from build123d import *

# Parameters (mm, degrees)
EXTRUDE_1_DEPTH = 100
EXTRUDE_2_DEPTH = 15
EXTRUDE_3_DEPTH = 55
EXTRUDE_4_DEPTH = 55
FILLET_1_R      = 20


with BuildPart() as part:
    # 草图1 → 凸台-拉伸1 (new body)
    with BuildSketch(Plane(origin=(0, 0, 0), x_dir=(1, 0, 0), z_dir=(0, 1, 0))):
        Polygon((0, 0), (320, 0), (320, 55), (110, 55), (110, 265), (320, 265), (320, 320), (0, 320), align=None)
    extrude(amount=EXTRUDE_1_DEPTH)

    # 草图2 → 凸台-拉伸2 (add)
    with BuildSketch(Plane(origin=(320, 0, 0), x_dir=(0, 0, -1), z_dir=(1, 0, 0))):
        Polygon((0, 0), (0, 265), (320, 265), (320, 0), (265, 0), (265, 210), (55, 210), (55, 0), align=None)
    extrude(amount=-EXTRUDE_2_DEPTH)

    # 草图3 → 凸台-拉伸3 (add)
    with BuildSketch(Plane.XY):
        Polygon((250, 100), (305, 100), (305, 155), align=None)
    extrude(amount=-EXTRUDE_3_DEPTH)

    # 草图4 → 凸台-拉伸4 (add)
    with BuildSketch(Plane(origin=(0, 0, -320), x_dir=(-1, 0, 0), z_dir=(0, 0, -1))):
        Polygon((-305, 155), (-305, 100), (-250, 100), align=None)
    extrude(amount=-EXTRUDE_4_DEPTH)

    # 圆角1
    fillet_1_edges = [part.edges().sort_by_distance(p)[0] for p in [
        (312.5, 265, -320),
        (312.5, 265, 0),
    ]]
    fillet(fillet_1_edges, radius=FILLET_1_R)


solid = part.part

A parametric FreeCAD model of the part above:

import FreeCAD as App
import Part
import Sketcher
from FreeCAD import Vector


def edges_at(feature, points):
    """Names of the edges that pass closest to the given points."""
    edges = feature.Shape.Edges
    near = lambda p: min(range(len(edges)), key=lambda i: edges[i].distToShape(Part.Vertex(*p))[0])
    return sorted({f"Edge{near(p) + 1}" for p in points})

doc = App.newDocument("Part")
body = doc.addObject("PartDesign::Body", "Body")

# Sketch on XZ plane
sketch1 = body.newObject("Sketcher::SketchObject", "Sketch")
sketch1.AttachmentSupport = (doc.getObject("XZ_Plane"), [""])
sketch1.MapMode = "FlatFace"
sketch1.addGeometry(Part.LineSegment(Vector(0, 0, 0), Vector(320, 0, 0)), False)
sketch1.addGeometry(Part.LineSegment(Vector(320, 0, 0), Vector(320, -55, 0)), False)
sketch1.addGeometry(Part.LineSegment(Vector(320, -55, 0), Vector(110, -55, 0)), False)
sketch1.addGeometry(Part.LineSegment(Vector(110, -55, 0), Vector(110, -265, 0)), False)
sketch1.addGeometry(Part.LineSegment(Vector(110, -265, 0), Vector(320, -265, 0)), False)
sketch1.addGeometry(Part.LineSegment(Vector(320, -265, 0), Vector(320, -320, 0)), False)
sketch1.addGeometry(Part.LineSegment(Vector(320, -320, 0), Vector(0, -320, 0)), False)
sketch1.addGeometry(Part.LineSegment(Vector(0, -320, 0), Vector(0, 0, 0)), False)
sketch1.addConstraint(Sketcher.Constraint("Coincident", 0, 2, 1, 1))
sketch1.addConstraint(Sketcher.Constraint("Coincident", 1, 2, 2, 1))
sketch1.addConstraint(Sketcher.Constraint("Coincident", 2, 2, 3, 1))
sketch1.addConstraint(Sketcher.Constraint("Coincident", 3, 2, 4, 1))
sketch1.addConstraint(Sketcher.Constraint("Coincident", 4, 2, 5, 1))
sketch1.addConstraint(Sketcher.Constraint("Coincident", 5, 2, 6, 1))
sketch1.addConstraint(Sketcher.Constraint("Coincident", 6, 2, 7, 1))
sketch1.addConstraint(Sketcher.Constraint("Coincident", 7, 2, 0, 1))
sketch1.addConstraint(Sketcher.Constraint("Horizontal", 0))
sketch1.addConstraint(Sketcher.Constraint("Vertical", 1))
sketch1.addConstraint(Sketcher.Constraint("Horizontal", 2))
sketch1.addConstraint(Sketcher.Constraint("Vertical", 3))
sketch1.addConstraint(Sketcher.Constraint("Horizontal", 4))
sketch1.addConstraint(Sketcher.Constraint("Vertical", 5))
sketch1.addConstraint(Sketcher.Constraint("Horizontal", 6))
sketch1.addConstraint(Sketcher.Constraint("Vertical", 7))
sketch1.addConstraint(Sketcher.Constraint("Coincident", 7, 2, -1, 1))
sketch1.addConstraint(Sketcher.Constraint("Vertical", 1, 2, 4, 2))
sketch1.addConstraint(Sketcher.Constraint("Equal", 4, 3))
sketch1.addConstraint(Sketcher.Constraint("Equal", 1, 5))
sketch1.addConstraint(Sketcher.Constraint("Equal", 6, 7))
sketch1.addConstraint(Sketcher.Constraint("DistanceX", 0, 1, 0, 2, 320.0))
sketch1.addConstraint(Sketcher.Constraint("DistanceX", 2, 2, 2, 1, 210.0))
pad1 = body.newObject("PartDesign::Pad", "Pad")
pad1.Profile = sketch1
pad1.Length = 100
pad1.Reversed = True

# Sketch on YZ plane
sketch2 = body.newObject("Sketcher::SketchObject", "Sketch001")
sketch2.AttachmentSupport = (doc.getObject("YZ_Plane"), [""])
sketch2.MapMode = "FlatFace"
sketch2.AttachmentOffset = App.Placement(Vector(0, 0, 320), App.Rotation())
sketch2.addGeometry(Part.LineSegment(Vector(265, 0, 0), Vector(0, 0, 0)), False)
sketch2.addGeometry(Part.LineSegment(Vector(0, 0, 0), Vector(0, -55, 0)), False)
sketch2.addGeometry(Part.LineSegment(Vector(0, -55, 0), Vector(210, -55, 0)), False)
sketch2.addGeometry(Part.LineSegment(Vector(210, -55, 0), Vector(210, -265, 0)), False)
sketch2.addGeometry(Part.LineSegment(Vector(210, -265, 0), Vector(0, -265, 0)), False)
sketch2.addGeometry(Part.LineSegment(Vector(0, -265, 0), Vector(0, -320, 0)), False)
sketch2.addGeometry(Part.LineSegment(Vector(0, -320, 0), Vector(265, -320, 0)), False)
sketch2.addGeometry(Part.LineSegment(Vector(265, -320, 0), Vector(265, 0, 0)), False)
sketch2.addConstraint(Sketcher.Constraint("Coincident", 0, 2, 1, 1))
sketch2.addConstraint(Sketcher.Constraint("Coincident", 1, 2, 2, 1))
sketch2.addConstraint(Sketcher.Constraint("Coincident", 2, 2, 3, 1))
sketch2.addConstraint(Sketcher.Constraint("Coincident", 3, 2, 4, 1))
sketch2.addConstraint(Sketcher.Constraint("Coincident", 4, 2, 5, 1))
sketch2.addConstraint(Sketcher.Constraint("Coincident", 5, 2, 6, 1))
sketch2.addConstraint(Sketcher.Constraint("Coincident", 6, 2, 7, 1))
sketch2.addConstraint(Sketcher.Constraint("Coincident", 7, 2, 0, 1))
sketch2.addConstraint(Sketcher.Constraint("Horizontal", 0))
sketch2.addConstraint(Sketcher.Constraint("Vertical", 1))
sketch2.addConstraint(Sketcher.Constraint("Horizontal", 2))
sketch2.addConstraint(Sketcher.Constraint("Vertical", 3))
sketch2.addConstraint(Sketcher.Constraint("Horizontal", 4))
sketch2.addConstraint(Sketcher.Constraint("Vertical", 5))
sketch2.addConstraint(Sketcher.Constraint("Horizontal", 6))
sketch2.addConstraint(Sketcher.Constraint("Vertical", 7))
sketch2.addConstraint(Sketcher.Constraint("Coincident", 0, 2, -1, 1))
sketch2.addConstraint(Sketcher.Constraint("PointOnObject", 4, 2, -2))
sketch2.addConstraint(Sketcher.Constraint("Equal", 4, 3))
sketch2.addConstraint(Sketcher.Constraint("Equal", 1, 5))
sketch2.addConstraint(Sketcher.Constraint("DistanceX", 0, 2, 0, 1, 265.0))
sketch2.addConstraint(Sketcher.Constraint("DistanceX", 2, 1, 2, 2, 210.0))
sketch2.addConstraint(Sketcher.Constraint("DistanceY", 1, 2, 1, 1, 55.0))
pad2 = body.newObject("PartDesign::Pad", "Pad001")
pad2.Profile = sketch2
pad2.Length = 15
pad2.Reversed = True

# Sketch on XY plane
sketch3 = body.newObject("Sketcher::SketchObject", "Sketch002")
sketch3.AttachmentSupport = (doc.getObject("XY_Plane"), [""])
sketch3.MapMode = "FlatFace"
sketch3.addGeometry(Part.LineSegment(Vector(250, 100, 0), Vector(305, 100, 0)), False)
sketch3.addGeometry(Part.LineSegment(Vector(305, 100, 0), Vector(305, 155, 0)), False)
sketch3.addGeometry(Part.LineSegment(Vector(305, 155, 0), Vector(250, 100, 0)), False)
sketch3.addConstraint(Sketcher.Constraint("Coincident", 0, 2, 1, 1))
sketch3.addConstraint(Sketcher.Constraint("Coincident", 1, 2, 2, 1))
sketch3.addConstraint(Sketcher.Constraint("Coincident", 2, 2, 0, 1))
sketch3.addConstraint(Sketcher.Constraint("Horizontal", 0))
sketch3.addConstraint(Sketcher.Constraint("Vertical", 1))
sketch3.addConstraint(Sketcher.Constraint("Equal", 0, 1))
sketch3.addConstraint(Sketcher.Constraint("DistanceX", 0, 1, 0, 2, 55.0))
sketch3.addConstraint(Sketcher.Constraint("DistanceX", -1, 1, 0, 2, 305.0))
sketch3.addConstraint(Sketcher.Constraint("DistanceY", -1, 1, 0, 2, 100.0))
pad3 = body.newObject("PartDesign::Pad", "Pad002")
pad3.Profile = sketch3
pad3.Length = 55
pad3.Reversed = True

# Sketch on XY plane
sketch4 = body.newObject("Sketcher::SketchObject", "Sketch003")
sketch4.AttachmentSupport = (doc.getObject("XY_Plane"), [""])
sketch4.MapMode = "FlatFace"
sketch4.AttachmentOffset = App.Placement(Vector(0, 0, -320), App.Rotation())
sketch4.addGeometry(Part.LineSegment(Vector(305, 155, 0), Vector(305, 100, 0)), False)
sketch4.addGeometry(Part.LineSegment(Vector(305, 100, 0), Vector(250, 100, 0)), False)
sketch4.addGeometry(Part.LineSegment(Vector(250, 100, 0), Vector(305, 155, 0)), False)
sketch4.addConstraint(Sketcher.Constraint("Coincident", 0, 2, 1, 1))
sketch4.addConstraint(Sketcher.Constraint("Coincident", 1, 2, 2, 1))
sketch4.addConstraint(Sketcher.Constraint("Coincident", 2, 2, 0, 1))
sketch4.addConstraint(Sketcher.Constraint("Vertical", 0))
sketch4.addConstraint(Sketcher.Constraint("Horizontal", 1))
sketch4.addConstraint(Sketcher.Constraint("Equal", 1, 0))
sketch4.addConstraint(Sketcher.Constraint("DistanceX", 1, 2, 1, 1, 55.0))
sketch4.addConstraint(Sketcher.Constraint("DistanceX", -1, 1, 0, 2, 305.0))
sketch4.addConstraint(Sketcher.Constraint("DistanceY", -1, 1, 0, 2, 100.0))
pad4 = body.newObject("PartDesign::Pad", "Pad003")
pad4.Profile = sketch4
pad4.Length = 55
doc.recompute()

fillet = body.newObject("PartDesign::Fillet", "Fillet")
fillet.Base = (pad4, edges_at(pad4, [(312.5, 265, -320), (312.5, 265, 0)]))
fillet.Radius = 20

doc.recompute()
